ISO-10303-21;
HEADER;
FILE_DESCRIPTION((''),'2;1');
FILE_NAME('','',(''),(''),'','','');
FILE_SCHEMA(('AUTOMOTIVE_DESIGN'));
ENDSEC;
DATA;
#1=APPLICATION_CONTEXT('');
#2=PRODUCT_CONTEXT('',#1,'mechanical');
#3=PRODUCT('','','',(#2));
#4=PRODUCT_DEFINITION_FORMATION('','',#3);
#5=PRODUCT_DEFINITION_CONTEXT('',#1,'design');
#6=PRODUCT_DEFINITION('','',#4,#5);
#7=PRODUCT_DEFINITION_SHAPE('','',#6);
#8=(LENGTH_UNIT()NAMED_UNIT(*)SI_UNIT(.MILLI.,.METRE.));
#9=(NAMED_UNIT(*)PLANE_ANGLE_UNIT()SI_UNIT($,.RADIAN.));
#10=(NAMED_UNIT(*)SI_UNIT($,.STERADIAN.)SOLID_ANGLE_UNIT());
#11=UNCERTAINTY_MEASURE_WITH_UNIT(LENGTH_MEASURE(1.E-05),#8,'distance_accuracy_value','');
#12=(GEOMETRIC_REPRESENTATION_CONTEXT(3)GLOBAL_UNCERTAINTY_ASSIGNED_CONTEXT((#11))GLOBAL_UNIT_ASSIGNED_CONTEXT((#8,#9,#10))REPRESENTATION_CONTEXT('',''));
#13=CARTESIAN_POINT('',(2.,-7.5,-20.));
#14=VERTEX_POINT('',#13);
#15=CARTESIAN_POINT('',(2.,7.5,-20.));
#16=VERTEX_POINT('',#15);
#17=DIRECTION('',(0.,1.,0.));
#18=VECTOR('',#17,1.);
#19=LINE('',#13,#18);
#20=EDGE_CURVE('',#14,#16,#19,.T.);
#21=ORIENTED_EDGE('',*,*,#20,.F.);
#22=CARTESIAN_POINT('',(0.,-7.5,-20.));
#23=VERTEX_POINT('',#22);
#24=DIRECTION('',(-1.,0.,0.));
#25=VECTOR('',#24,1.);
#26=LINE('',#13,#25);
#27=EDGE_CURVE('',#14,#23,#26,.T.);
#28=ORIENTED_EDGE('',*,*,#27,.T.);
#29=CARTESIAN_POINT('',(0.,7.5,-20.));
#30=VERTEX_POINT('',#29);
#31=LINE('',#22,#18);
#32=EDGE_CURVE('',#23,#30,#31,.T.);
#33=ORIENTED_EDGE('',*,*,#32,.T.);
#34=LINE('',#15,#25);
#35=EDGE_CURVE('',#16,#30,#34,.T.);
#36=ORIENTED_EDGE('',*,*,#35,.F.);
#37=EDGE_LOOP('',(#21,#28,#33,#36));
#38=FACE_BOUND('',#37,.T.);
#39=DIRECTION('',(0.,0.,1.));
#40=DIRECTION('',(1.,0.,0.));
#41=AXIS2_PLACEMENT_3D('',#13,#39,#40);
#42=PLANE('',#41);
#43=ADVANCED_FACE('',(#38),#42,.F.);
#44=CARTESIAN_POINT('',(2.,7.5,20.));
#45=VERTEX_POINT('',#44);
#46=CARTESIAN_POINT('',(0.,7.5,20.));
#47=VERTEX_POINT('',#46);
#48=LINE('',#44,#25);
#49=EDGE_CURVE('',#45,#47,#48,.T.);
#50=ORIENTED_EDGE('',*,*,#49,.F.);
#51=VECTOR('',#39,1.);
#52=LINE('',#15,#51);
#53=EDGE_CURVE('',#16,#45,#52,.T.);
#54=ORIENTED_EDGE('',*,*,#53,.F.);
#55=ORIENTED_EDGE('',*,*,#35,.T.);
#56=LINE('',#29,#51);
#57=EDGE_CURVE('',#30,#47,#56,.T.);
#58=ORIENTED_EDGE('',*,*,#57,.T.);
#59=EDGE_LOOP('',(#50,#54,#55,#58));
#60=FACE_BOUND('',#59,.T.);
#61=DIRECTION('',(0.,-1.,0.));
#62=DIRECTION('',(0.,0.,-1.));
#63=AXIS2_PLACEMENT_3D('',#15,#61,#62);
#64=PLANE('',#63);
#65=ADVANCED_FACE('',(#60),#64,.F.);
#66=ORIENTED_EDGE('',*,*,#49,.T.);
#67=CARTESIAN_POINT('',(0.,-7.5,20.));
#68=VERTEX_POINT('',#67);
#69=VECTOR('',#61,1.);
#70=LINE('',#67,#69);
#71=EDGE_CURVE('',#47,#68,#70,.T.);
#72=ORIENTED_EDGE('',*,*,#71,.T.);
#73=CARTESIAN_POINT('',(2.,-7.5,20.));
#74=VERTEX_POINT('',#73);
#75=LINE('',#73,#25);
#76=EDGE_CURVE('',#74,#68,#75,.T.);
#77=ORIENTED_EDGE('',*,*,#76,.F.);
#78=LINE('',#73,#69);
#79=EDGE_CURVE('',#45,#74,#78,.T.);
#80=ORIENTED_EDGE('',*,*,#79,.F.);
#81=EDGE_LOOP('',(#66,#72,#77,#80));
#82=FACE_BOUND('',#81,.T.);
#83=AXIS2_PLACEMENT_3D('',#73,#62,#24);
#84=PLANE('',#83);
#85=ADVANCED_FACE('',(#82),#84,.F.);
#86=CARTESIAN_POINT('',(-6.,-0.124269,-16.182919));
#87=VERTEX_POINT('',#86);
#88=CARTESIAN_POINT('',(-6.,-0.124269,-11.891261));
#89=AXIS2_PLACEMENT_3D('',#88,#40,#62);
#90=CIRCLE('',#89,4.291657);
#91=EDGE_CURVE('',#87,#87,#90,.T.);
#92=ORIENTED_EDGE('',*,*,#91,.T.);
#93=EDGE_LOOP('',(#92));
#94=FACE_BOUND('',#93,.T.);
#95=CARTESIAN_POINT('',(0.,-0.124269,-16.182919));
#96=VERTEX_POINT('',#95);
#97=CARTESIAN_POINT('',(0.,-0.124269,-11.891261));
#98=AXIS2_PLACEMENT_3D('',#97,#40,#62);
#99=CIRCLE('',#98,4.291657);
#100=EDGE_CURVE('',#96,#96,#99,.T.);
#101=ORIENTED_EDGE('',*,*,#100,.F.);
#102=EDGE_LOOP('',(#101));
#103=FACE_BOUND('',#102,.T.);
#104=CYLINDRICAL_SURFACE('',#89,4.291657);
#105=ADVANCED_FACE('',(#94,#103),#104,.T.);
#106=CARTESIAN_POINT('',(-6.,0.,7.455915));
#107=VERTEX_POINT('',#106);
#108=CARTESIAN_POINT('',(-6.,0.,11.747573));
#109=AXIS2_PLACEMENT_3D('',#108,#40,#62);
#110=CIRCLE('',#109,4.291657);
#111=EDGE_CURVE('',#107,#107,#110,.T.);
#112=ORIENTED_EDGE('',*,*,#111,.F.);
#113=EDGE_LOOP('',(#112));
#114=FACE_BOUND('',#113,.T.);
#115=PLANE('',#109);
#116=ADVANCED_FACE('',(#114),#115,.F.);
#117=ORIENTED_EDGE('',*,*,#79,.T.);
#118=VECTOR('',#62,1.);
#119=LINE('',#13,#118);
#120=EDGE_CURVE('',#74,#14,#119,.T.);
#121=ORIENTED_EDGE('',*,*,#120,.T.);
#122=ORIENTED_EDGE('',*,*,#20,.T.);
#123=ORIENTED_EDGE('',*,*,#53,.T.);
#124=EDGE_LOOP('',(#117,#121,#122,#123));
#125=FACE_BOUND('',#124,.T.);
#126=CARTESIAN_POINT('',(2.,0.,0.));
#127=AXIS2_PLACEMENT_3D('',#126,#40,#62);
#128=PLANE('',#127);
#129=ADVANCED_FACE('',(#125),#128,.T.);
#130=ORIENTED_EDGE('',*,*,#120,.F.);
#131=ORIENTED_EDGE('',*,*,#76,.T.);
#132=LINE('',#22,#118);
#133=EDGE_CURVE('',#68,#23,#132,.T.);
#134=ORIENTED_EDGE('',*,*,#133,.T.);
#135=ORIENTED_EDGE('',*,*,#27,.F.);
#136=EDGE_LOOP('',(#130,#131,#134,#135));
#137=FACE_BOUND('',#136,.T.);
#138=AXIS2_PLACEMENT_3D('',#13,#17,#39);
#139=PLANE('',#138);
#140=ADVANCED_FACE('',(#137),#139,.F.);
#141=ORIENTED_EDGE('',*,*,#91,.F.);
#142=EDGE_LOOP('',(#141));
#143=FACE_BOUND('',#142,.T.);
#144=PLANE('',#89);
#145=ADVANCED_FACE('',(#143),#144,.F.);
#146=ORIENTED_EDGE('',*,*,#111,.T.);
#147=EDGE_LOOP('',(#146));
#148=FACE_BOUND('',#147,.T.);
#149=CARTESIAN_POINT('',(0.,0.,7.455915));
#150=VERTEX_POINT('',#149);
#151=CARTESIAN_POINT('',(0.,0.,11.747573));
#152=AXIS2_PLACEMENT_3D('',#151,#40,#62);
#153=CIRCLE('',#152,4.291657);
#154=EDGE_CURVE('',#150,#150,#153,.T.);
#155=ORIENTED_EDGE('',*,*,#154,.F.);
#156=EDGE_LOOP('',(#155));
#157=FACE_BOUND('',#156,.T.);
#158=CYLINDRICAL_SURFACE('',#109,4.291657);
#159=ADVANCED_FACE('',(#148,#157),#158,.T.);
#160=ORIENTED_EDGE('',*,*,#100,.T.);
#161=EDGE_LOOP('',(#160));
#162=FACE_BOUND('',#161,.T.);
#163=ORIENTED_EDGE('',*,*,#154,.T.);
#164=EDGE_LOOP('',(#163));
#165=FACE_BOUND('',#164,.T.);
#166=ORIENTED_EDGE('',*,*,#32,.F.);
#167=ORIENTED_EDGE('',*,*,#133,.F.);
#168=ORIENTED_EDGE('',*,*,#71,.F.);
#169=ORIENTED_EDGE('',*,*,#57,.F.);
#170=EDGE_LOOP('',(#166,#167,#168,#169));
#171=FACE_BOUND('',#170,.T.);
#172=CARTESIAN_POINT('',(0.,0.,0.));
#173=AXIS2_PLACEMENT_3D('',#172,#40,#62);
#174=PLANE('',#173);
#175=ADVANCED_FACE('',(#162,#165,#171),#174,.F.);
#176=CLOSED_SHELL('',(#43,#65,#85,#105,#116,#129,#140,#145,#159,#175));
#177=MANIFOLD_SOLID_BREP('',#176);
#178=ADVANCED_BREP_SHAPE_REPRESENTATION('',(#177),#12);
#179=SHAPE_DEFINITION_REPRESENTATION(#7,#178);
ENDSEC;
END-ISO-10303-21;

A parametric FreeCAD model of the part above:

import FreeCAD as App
import Part
import Sketcher

V = App.Vector

doc = App.newDocument("Part")
params = doc.addObject("Spreadsheet::Sheet", "Params")
for row, (alias, value) in enumerate([
    ("sketch1_width", "15 mm"),
    ("sketch1_height", "40 mm"),
    ("pad1_length", "2 mm"),
    ("pad2_length", "8 mm"),
], start=1):
    params.set(f"A{row}", alias)
    params.set(f"B{row}", "=" + value)
    params.setAlias(f"B{row}", alias)

body = doc.addObject("PartDesign::Body", "Body")

# Sketch on YZ plane
sketch1 = doc.addObject("Sketcher::SketchObject", "Sketch")
body.addObject(sketch1)
sketch1.AttachmentSupport = (doc.YZ_Plane, [""])
sketch1.MapMode = "FlatFace"
sketch1.addGeometry([
    Part.LineSegment(V(7.5, 20, 0), V(-7.5, 20, 0)),  # 0
    Part.LineSegment(V(-7.5, 20, 0), V(-7.5, -20, 0)),  # 1
    Part.LineSegment(V(-7.5, -20, 0), V(7.5, -20, 0)),  # 2
    Part.LineSegment(V(7.5, -20, 0), V(7.5, 20, 0)),  # 3
    Part.Circle(V(-0.1, -11.9, 0), V(0, 0, 1), 4.3),  # 4
    Part.Circle(V(0, 11.7, 0), V(0, 0, 1), 4.3),  # 5
], False)
sketch1.addConstraint([
    Sketcher.Constraint("Coincident", 0, 2, 1, 1),
    Sketcher.Constraint("Coincident", 1, 2, 2, 1),
    Sketcher.Constraint("Coincident", 2, 2, 3, 1),
    Sketcher.Constraint("Coincident", 3, 2, 0, 1),
    Sketcher.Constraint("Horizontal", 0),
    Sketcher.Constraint("Vertical", 1),
    Sketcher.Constraint("Horizontal", 2),
    Sketcher.Constraint("Vertical", 3),
    Sketcher.Constraint("Equal", 4, 5),
    Sketcher.Constraint("Symmetric", 0, 2, 2, 2, -1, 1),
    Sketcher.Constraint("PointOnObject", 5, 3, -2),
    Sketcher.Constraint("DistanceX", 0, 2, 0, 1, 15.0),
    Sketcher.Constraint("DistanceY", 1, 2, 1, 1, 40.0),
    Sketcher.Constraint("Diameter", 4, 8.583315),
    Sketcher.Constraint("DistanceX", 4, 3, -1, 1, 0.124269),
    Sketcher.Constraint("DistanceY", 4, 3, -1, 1, 11.891261),
    Sketcher.Constraint("DistanceY", -1, 1, 5, 3, 11.747573),
])
sketch1.setExpression("Constraints[11]", "Params.sketch1_width")
sketch1.setExpression("Constraints[12]", "Params.sketch1_height")
pad1 = doc.addObject("PartDesign::Pad", "Pad")
body.addObject(pad1)
pad1.Profile = sketch1
pad1.setExpression("Length", "Params.pad1_length")

# Sketch on YZ plane
sketch2 = doc.addObject("Sketcher::SketchObject", "Sketch001")
body.addObject(sketch2)
sketch2.AttachmentSupport = (doc.YZ_Plane, [""])
sketch2.MapMode = "FlatFace"
sketch2.AttachmentOffset = App.Placement(V(0, 0, -6), App.Rotation())
sketch2.addGeometry([
    Part.Circle(V(0, 11.7, 0), V(0, 0, 1), 4.3),
    Part.Circle(V(-0.1, -11.9, 0), V(0, 0, 1), 4.3),
], False)
sketch2.addConstraint([
    Sketcher.Constraint("Equal", 0, 1),
    Sketcher.Constraint("PointOnObject", 0, 3, -2),
    Sketcher.Constraint("Diameter", 0, 8.583315),
    Sketcher.Constraint("DistanceX", 1, 3, -1, 1, 0.124269),
    Sketcher.Constraint("DistanceY", 1, 3, -1, 1, 11.891261),
    Sketcher.Constraint("DistanceY", -1, 1, 0, 3, 11.747573),
])
pad2 = doc.addObject("PartDesign::Pad", "Pad001")
body.addObject(pad2)
pad2.Profile = sketch2
pad2.setExpression("Length", "Params.pad2_length")

doc.recompute()
